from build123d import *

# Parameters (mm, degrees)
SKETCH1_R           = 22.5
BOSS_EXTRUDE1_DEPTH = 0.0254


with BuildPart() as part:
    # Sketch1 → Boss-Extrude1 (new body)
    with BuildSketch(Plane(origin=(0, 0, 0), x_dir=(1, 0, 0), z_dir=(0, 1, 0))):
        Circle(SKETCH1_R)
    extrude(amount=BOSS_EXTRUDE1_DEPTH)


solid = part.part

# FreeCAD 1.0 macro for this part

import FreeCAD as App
import Part
import Sketcher

doc = App.newDocument("Part")
body = doc.addObject("PartDesign::Body", "Body")

sketch1 = doc.addObject("Sketcher::SketchObject", "Sketch")
body.addObject(sketch1)
sketch1.AttachmentSupport = (doc.XZ_Plane, [""])
sketch1.MapMode = "FlatFace"
sketch1.addGeometry(Part.Circle(App.Vector(0, 0, 0), App.Vector(0, 0, 1), 22.5), False)
sketch1.addConstraint([
    Sketcher.Constraint("Coincident", 0, 3, -1, 1),
    Sketcher.Constraint("Diameter", 0, 45.0),
])
pad1 = doc.addObject("PartDesign::Pad", "Pad")
body.addObject(pad1)
pad1.Profile = sketch1
pad1.Length = 0.0254
pad1.Reversed = True

doc.recompute()
